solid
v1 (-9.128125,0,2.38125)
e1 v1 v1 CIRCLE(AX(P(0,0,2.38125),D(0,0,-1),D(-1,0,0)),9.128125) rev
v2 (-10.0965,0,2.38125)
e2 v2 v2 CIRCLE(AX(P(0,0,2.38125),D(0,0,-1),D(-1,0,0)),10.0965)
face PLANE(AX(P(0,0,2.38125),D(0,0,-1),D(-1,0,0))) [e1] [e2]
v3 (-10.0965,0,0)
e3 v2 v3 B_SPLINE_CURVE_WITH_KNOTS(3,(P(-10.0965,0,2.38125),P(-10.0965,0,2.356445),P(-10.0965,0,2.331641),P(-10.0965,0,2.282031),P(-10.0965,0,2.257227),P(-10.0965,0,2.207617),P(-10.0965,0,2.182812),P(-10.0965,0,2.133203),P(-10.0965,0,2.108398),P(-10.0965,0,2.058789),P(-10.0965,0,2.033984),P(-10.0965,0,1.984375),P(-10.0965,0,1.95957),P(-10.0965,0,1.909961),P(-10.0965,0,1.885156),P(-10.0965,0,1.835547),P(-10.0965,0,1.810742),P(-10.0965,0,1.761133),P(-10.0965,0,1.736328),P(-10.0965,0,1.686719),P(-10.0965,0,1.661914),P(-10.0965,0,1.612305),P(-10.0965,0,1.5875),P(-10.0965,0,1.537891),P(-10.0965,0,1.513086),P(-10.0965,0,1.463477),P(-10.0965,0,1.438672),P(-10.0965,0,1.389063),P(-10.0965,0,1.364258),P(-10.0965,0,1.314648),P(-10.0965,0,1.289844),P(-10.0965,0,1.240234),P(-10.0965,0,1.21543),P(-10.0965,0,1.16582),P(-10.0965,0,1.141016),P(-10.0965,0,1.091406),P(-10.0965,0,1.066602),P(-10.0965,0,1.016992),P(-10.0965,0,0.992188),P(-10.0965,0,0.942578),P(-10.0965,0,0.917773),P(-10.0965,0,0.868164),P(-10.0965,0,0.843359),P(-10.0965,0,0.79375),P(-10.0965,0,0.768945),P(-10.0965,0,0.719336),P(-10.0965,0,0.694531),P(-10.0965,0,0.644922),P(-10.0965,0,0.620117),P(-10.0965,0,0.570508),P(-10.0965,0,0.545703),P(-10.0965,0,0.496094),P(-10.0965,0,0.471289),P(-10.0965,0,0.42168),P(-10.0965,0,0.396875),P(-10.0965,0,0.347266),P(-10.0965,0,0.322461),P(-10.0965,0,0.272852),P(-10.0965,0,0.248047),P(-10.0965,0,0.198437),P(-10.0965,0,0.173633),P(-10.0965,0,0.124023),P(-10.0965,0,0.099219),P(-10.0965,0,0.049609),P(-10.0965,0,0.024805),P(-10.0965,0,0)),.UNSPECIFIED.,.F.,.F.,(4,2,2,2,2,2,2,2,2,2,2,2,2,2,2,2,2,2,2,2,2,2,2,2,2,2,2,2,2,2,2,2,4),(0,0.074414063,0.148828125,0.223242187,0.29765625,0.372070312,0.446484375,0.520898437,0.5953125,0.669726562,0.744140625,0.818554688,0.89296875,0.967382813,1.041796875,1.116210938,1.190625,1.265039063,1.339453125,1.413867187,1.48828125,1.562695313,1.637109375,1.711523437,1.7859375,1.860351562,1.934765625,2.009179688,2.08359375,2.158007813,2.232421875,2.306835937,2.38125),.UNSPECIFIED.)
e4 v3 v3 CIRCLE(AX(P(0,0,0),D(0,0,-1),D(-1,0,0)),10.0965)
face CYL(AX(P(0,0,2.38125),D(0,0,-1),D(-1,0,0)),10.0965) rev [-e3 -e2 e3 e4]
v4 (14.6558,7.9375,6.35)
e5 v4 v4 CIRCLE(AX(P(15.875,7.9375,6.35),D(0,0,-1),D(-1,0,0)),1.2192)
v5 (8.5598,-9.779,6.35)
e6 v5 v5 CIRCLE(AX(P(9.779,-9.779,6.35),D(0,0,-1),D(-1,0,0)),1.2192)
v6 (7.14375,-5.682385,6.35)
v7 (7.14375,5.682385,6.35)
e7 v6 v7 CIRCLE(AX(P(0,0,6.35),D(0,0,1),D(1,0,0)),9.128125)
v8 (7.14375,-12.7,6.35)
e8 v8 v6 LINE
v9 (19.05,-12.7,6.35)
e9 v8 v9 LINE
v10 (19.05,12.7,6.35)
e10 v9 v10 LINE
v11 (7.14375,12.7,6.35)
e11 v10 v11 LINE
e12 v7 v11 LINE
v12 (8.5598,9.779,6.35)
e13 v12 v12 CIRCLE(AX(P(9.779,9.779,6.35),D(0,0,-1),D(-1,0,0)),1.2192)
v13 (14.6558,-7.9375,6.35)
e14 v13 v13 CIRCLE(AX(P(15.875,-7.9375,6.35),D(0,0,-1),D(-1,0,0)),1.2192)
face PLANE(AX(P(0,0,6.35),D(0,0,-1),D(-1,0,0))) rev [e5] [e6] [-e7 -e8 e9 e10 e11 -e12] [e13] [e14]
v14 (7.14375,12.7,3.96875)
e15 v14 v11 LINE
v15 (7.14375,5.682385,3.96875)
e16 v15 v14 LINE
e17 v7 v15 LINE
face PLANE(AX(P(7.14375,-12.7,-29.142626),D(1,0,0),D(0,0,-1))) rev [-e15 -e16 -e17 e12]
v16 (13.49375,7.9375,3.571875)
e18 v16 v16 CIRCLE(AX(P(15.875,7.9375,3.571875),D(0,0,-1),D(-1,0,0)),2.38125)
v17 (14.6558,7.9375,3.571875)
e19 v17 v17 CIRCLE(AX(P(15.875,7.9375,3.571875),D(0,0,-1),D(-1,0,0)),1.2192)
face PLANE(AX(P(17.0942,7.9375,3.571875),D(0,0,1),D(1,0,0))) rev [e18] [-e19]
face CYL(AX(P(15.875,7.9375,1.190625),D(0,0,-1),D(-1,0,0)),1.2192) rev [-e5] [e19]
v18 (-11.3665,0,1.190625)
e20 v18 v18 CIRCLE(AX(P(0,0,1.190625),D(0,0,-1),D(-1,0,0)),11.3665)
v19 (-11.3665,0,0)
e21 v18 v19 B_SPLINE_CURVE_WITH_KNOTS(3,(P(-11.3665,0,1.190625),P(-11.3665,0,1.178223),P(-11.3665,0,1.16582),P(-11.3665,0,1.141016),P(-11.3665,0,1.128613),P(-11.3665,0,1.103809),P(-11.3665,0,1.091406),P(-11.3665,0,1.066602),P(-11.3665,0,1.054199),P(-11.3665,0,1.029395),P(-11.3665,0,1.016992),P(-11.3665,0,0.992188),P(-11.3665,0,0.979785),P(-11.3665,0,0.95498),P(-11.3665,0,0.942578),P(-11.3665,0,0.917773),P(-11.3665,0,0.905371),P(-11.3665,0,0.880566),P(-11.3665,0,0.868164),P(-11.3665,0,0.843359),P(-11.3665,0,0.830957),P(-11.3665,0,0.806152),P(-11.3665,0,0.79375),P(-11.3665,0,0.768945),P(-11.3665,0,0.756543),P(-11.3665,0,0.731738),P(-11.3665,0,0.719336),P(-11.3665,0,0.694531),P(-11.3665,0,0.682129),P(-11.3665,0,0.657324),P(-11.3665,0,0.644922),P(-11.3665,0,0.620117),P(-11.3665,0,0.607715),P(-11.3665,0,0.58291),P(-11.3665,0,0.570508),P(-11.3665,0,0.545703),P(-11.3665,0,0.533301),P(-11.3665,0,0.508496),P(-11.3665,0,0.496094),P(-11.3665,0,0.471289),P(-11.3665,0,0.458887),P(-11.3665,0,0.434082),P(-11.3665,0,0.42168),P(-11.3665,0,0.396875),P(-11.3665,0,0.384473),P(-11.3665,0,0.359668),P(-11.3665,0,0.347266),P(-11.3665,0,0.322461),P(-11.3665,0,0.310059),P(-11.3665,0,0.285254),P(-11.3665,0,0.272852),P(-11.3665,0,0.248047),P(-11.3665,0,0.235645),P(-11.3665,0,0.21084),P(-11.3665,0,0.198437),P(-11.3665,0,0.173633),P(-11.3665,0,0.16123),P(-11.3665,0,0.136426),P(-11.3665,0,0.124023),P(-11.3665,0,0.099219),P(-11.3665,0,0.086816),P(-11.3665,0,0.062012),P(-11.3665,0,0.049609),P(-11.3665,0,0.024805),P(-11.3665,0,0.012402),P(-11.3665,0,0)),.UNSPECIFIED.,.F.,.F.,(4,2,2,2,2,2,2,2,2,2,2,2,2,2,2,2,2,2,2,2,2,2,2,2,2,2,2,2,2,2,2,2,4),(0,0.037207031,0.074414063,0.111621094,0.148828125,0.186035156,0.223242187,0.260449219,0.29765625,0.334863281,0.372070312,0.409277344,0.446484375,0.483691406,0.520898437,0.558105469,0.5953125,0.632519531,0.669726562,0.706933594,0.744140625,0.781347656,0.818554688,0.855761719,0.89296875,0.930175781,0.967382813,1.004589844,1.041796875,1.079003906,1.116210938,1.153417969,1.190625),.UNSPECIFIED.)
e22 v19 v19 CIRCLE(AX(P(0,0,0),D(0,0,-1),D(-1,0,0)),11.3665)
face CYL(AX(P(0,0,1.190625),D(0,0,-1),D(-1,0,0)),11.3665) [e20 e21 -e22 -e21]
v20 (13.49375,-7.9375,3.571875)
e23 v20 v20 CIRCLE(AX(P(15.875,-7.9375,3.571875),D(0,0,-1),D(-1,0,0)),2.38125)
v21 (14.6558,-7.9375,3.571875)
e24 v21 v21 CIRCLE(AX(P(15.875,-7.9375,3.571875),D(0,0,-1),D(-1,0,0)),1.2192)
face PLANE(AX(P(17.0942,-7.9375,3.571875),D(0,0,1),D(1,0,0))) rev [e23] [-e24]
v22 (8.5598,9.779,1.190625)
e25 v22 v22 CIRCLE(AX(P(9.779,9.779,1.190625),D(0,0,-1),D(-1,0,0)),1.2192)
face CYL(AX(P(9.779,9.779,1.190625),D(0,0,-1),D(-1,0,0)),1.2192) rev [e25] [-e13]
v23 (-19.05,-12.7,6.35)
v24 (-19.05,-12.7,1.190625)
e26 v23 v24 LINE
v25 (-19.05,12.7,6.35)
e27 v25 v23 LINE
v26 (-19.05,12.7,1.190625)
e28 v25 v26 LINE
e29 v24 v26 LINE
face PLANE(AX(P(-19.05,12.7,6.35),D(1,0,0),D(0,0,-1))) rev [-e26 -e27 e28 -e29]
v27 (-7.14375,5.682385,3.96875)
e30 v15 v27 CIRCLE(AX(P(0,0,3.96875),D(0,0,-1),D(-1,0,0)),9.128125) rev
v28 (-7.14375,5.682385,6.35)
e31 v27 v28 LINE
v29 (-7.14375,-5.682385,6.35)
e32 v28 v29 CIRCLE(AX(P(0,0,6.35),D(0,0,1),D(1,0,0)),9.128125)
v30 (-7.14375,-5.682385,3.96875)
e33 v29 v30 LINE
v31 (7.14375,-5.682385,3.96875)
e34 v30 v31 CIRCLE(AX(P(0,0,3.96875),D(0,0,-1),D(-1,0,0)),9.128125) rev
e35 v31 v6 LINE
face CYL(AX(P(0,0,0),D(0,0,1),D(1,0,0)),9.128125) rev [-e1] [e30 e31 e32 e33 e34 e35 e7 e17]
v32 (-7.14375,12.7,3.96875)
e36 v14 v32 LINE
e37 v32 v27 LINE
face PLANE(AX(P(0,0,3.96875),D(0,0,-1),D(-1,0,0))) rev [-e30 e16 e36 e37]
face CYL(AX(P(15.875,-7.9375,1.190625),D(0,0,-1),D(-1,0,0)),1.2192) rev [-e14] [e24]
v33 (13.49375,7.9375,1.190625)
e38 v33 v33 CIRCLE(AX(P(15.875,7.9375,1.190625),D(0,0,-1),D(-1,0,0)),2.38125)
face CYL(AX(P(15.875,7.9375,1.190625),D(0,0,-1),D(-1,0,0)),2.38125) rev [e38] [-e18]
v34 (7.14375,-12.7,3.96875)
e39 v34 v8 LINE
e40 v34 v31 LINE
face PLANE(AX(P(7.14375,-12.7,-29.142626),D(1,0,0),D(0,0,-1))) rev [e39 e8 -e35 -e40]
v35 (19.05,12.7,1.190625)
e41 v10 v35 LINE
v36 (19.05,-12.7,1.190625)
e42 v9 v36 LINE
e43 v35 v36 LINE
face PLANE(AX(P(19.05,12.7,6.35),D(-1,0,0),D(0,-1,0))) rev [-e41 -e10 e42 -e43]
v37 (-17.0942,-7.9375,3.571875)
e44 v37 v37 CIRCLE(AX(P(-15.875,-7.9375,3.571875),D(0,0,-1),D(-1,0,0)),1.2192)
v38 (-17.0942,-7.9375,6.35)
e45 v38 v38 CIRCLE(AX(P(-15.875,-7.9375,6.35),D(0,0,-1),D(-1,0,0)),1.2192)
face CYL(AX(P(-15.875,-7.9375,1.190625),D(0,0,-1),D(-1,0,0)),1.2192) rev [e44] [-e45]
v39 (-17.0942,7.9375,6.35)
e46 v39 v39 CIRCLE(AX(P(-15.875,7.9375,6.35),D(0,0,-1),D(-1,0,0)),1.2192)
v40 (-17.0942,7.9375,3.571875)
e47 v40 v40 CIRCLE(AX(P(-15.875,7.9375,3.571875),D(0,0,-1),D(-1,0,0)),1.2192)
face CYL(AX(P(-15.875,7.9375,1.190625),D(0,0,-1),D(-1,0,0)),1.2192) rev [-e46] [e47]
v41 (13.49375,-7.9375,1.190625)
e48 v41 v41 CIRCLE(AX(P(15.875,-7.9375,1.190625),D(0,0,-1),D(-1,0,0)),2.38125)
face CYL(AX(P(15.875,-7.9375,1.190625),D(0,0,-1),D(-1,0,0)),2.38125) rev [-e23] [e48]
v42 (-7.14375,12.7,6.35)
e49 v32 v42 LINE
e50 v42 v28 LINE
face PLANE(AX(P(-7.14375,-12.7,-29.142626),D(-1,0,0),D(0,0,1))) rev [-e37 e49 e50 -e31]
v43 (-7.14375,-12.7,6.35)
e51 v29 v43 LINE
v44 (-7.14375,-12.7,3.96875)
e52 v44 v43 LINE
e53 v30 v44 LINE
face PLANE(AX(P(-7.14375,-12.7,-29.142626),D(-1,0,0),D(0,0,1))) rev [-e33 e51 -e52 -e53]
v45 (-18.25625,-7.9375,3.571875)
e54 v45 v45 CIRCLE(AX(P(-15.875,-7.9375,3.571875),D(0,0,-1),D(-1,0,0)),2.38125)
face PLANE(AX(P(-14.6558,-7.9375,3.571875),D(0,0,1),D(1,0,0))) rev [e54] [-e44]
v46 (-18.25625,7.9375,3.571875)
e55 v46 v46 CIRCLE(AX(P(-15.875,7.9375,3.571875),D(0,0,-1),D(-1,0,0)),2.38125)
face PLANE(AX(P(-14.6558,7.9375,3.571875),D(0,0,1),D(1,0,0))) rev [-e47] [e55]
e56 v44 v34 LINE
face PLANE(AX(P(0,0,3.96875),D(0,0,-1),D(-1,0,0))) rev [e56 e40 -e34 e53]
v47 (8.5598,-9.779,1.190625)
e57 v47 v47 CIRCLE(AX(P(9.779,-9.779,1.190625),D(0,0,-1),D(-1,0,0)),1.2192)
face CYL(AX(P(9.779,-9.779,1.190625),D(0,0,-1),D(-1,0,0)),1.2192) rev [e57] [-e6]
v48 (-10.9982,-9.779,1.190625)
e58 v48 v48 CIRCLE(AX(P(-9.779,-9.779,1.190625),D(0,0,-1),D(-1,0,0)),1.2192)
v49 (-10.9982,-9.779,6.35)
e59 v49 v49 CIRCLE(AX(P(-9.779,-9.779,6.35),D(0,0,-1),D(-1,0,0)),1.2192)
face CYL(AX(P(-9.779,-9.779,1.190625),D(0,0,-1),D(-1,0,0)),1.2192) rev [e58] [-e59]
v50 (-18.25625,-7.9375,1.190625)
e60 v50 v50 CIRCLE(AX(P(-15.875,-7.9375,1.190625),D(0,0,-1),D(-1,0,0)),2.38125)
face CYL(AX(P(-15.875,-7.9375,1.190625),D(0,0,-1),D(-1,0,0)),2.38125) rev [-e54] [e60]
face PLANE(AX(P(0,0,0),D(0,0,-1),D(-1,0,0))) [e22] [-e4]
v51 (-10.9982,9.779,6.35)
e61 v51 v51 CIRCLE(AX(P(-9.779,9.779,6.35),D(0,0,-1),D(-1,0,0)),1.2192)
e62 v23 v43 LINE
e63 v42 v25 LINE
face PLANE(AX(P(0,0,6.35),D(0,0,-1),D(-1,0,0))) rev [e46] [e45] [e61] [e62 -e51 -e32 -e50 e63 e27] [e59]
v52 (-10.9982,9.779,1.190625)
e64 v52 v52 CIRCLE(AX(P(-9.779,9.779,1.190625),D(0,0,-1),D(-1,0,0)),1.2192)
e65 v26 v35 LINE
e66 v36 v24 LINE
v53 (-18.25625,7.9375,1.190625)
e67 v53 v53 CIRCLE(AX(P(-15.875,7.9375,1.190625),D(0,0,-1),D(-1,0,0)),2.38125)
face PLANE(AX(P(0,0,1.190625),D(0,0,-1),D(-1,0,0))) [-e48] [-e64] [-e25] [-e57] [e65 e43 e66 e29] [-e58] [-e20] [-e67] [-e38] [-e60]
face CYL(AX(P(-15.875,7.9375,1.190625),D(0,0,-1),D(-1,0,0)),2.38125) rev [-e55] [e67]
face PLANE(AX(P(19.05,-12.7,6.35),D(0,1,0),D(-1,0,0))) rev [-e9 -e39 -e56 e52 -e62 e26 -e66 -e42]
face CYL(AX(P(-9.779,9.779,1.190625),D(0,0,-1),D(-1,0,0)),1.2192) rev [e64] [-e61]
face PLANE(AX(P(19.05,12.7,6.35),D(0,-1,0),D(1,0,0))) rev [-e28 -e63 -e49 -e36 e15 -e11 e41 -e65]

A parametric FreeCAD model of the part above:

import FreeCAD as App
import Part
import Sketcher
from FreeCAD import Vector
Q = App.Units.Quantity

doc = App.newDocument("Part")
body = doc.addObject("PartDesign::Body", "Body")

# Sketch on XY plane
sketch1 = body.newObject("Sketcher::SketchObject", "Sketch")
sketch1.AttachmentSupport = (doc.getObject("XY_Plane"), [""])
sketch1.MapMode = "FlatFace"
sketch1.addGeometry(Part.LineSegment(Vector(-19, 13, 0), Vector(-19, -13, 0)), False)
sketch1.addGeometry(Part.LineSegment(Vector(-19, -13, 0), Vector(19, -13, 0)), False)
sketch1.addGeometry(Part.LineSegment(Vector(19, -13, 0), Vector(19, 13, 0)), False)
sketch1.addGeometry(Part.LineSegment(Vector(19, 13, 0), Vector(-19, 13, 0)), False)
sketch1.addConstraint(Sketcher.Constraint("Coincident", 0, 2, 1, 1))
sketch1.addConstraint(Sketcher.Constraint("Coincident", 1, 2, 2, 1))
sketch1.addConstraint(Sketcher.Constraint("Coincident", 2, 2, 3, 1))
sketch1.addConstraint(Sketcher.Constraint("Coincident", 3, 2, 0, 1))
sketch1.addConstraint(Sketcher.Constraint("Vertical", 0))
sketch1.addConstraint(Sketcher.Constraint("Horizontal", 1))
sketch1.addConstraint(Sketcher.Constraint("Vertical", 2))
sketch1.addConstraint(Sketcher.Constraint("Horizontal", 3))
sketch1.addConstraint(Sketcher.Constraint("Symmetric", 0, 2, 2, 2, -1, 1))
sketch1.addConstraint(Sketcher.Constraint("DistanceY", 0, 2, 0, 1, Q("1 in")))
sketch1.addConstraint(Sketcher.Constraint("DistanceX", 1, 1, 1, 2, Q("1.5 in")))
pad1 = body.newObject("PartDesign::Pad", "Pad")
pad1.Profile = sketch1
pad1.Length = Q("0.25 in")

# Sketch on XY plane
sketch2 = body.newObject("Sketcher::SketchObject", "Sketch001")
sketch2.AttachmentSupport = (doc.getObject("XY_Plane"), [""])
sketch2.MapMode = "FlatFace"
sketch2.AttachmentOffset = App.Placement(Vector(0, 0, 0.25 * 25.4), App.Rotation())
sketch2.addGeometry(Part.Circle(Vector(0, 0, 0), Vector(0, 0, 1), 9), False)
sketch2.addConstraint(Sketcher.Constraint("Coincident", 0, 3, -1, 1))
sketch2.addConstraint(Sketcher.Constraint("Diameter", 0, Q("0.71875 in")))
pocket1 = body.newObject("PartDesign::Pocket", "Pocket")
pocket1.Profile = sketch2
pocket1.Type = "ThroughAll"

# Sketch on XY plane
sketch3 = body.newObject("Sketcher::SketchObject", "Sketch002")
sketch3.AttachmentSupport = (doc.getObject("XY_Plane"), [""])
sketch3.MapMode = "FlatFace"
sketch3.AttachmentOffset = App.Placement(Vector(0, 0, 0.25 * 25.4), App.Rotation())
sketch3.addGeometry(Part.LineSegment(Vector(-7, 13, 0), Vector(-7, -13, 0)), False)
sketch3.addGeometry(Part.LineSegment(Vector(-7, -13, 0), Vector(7, -13, 0)), False)
sketch3.addGeometry(Part.LineSegment(Vector(7, -13, 0), Vector(7, 13, 0)), False)
sketch3.addGeometry(Part.LineSegment(Vector(7, 13, 0), Vector(-7, 13, 0)), False)
sketch3.addConstraint(Sketcher.Constraint("Coincident", 0, 2, 1, 1))
sketch3.addConstraint(Sketcher.Constraint("Coincident", 1, 2, 2, 1))
sketch3.addConstraint(Sketcher.Constraint("Coincident", 2, 2, 3, 1))
sketch3.addConstraint(Sketcher.Constraint("Coincident", 3, 2, 0, 1))
sketch3.addConstraint(Sketcher.Constraint("Vertical", 0))
sketch3.addConstraint(Sketcher.Constraint("Horizontal", 1))
sketch3.addConstraint(Sketcher.Constraint("Vertical", 2))
sketch3.addConstraint(Sketcher.Constraint("Horizontal", 3))
sketch3.addConstraint(Sketcher.Constraint("Symmetric", 0, 2, 2, 2, -1, 1))
sketch3.addConstraint(Sketcher.Constraint("DistanceY", 0, 2, 0, 1, Q("1 in")))
sketch3.addConstraint(Sketcher.Constraint("DistanceX", 1, 1, 1, 2, Q("0.5625 in")))
pocket2 = body.newObject("PartDesign::Pocket", "Pocket001")
pocket2.Profile = sketch3
pocket2.Length = Q("0.09375 in")

# Sketch on XY plane
sketch4 = body.newObject("Sketcher::SketchObject", "Sketch003")
sketch4.AttachmentSupport = (doc.getObject("XY_Plane"), [""])
sketch4.MapMode = "FlatFace"
sketch4.addGeometry(Part.LineSegment(Vector(19, 13, 0), Vector(19, -13, 0)), False)
sketch4.addGeometry(Part.LineSegment(Vector(19, -13, 0), Vector(-19, -13, 0)), False)
sketch4.addGeometry(Part.LineSegment(Vector(-19, -13, 0), Vector(-19, 13, 0)), False)
sketch4.addGeometry(Part.LineSegment(Vector(-19, 13, 0), Vector(19, 13, 0)), False)
sketch4.addGeometry(Part.Circle(Vector(0, 0, 0), Vector(0, 0, 1), 11), False)
sketch4.addConstraint(Sketcher.Constraint("Coincident", 0, 2, 1, 1))
sketch4.addConstraint(Sketcher.Constraint("Coincident", 1, 2, 2, 1))
sketch4.addConstraint(Sketcher.Constraint("Coincident", 2, 2, 3, 1))
sketch4.addConstraint(Sketcher.Constraint("Coincident", 3, 2, 0, 1))
sketch4.addConstraint(Sketcher.Constraint("Vertical", 0))
sketch4.addConstraint(Sketcher.Constraint("Horizontal", 1))
sketch4.addConstraint(Sketcher.Constraint("Vertical", 2))
sketch4.addConstraint(Sketcher.Constraint("Horizontal", 3))
sketch4.addConstraint(Sketcher.Constraint("Coincident", 4, 3, -1, 1))
sketch4.addConstraint(Sketcher.Constraint("Symmetric", 0, 2, 2, 2, -1, 1))
sketch4.addConstraint(Sketcher.Constraint("DistanceY", 0, 2, 0, 1, Q("1 in")))
sketch4.addConstraint(Sketcher.Constraint("Diameter", 4, Q("0.895 in")))
sketch4.addConstraint(Sketcher.Constraint("DistanceX", 1, 2, 1, 1, Q("1.5 in")))
pocket3 = body.newObject("PartDesign::Pocket", "Pocket002")
pocket3.Profile = sketch4
pocket3.Length = Q("0.046875 in")
pocket3.Reversed = True

# Sketch on XY plane
sketch5 = body.newObject("Sketcher::SketchObject", "Sketch004")
sketch5.AttachmentSupport = (doc.getObject("XY_Plane"), [""])
sketch5.MapMode = "FlatFace"
sketch5.addGeometry(Part.Circle(Vector(0, 0, 0), Vector(0, 0, 1), 10), False)
sketch5.addConstraint(Sketcher.Constraint("Coincident", 0, 3, -1, 1))
sketch5.addConstraint(Sketcher.Constraint("Diameter", 0, Q("0.795 in")))
pocket4 = body.newObject("PartDesign::Pocket", "Pocket003")
pocket4.Profile = sketch5
pocket4.Length = Q("0.09375 in")
pocket4.Reversed = True

# Sketch on XY plane
sketch6 = body.newObject("Sketcher::SketchObject", "Sketch005")
sketch6.AttachmentSupport = (doc.getObject("XY_Plane"), [""])
sketch6.MapMode = "FlatFace"
sketch6.AttachmentOffset = App.Placement(Vector(0, 0, 0.046875 * 25.4), App.Rotation())
sketch6.addGeometry(Part.Circle(Vector(9.8, 9.8, 0), Vector(0, 0, 1), 1.2), False)
sketch6.addGeometry(Part.Circle(Vector(-9.8, 9.8, 0), Vector(0, 0, 1), 1.2), False)
sketch6.addGeometry(Part.Circle(Vector(-9.8, -9.8, 0), Vector(0, 0, 1), 1.2), False)
sketch6.addGeometry(Part.Circle(Vector(9.8, -9.8, 0), Vector(0, 0, 1), 1.2), False)
sketch6.addConstraint(Sketcher.Constraint("Equal", 0, 1))
sketch6.addConstraint(Sketcher.Constraint("Equal", 1, 2))
sketch6.addConstraint(Sketcher.Constraint("Equal", 2, 3))
sketch6.addConstraint(Sketcher.Constraint("Symmetric", 0, 3, 2, 3, -1, 1))
sketch6.addConstraint(Sketcher.Constraint("Symmetric", 1, 3, 3, 3, -1, 1))
sketch6.addConstraint(Sketcher.Constraint("Symmetric", 0, 3, 1, 3, -2))
sketch6.addConstraint(Sketcher.Constraint("Diameter", 0, Q("0.096 in")))
sketch6.addConstraint(Sketcher.Constraint("DistanceX", 1, 3, 0, 3, Q("0.77 in")))
sketch6.addConstraint(Sketcher.Constraint("DistanceY", 2, 3, 1, 3, Q("0.77 in")))
doc.recompute()
hole = body.newObject("PartDesign::Hole", "Hole")
hole.Profile = sketch6
hole.ThreadType = "None"
hole.Diameter = Q("0.096 in")
hole.DepthType = "ThroughAll"
hole.Reversed = True

# Sketch on XY plane
sketch7 = body.newObject("Sketcher::SketchObject", "Sketch006")
sketch7.AttachmentSupport = (doc.getObject("XY_Plane"), [""])
sketch7.MapMode = "FlatFace"
sketch7.AttachmentOffset = App.Placement(Vector(0, 0, 0.046875 * 25.4), App.Rotation())
sketch7.addGeometry(Part.Circle(Vector(15.9, 7.9, 0), Vector(0, 0, 1), 1.2), False)
sketch7.addGeometry(Part.Circle(Vector(15.9, -7.9, 0), Vector(0, 0, 1), 1.2), False)
sketch7.addGeometry(Part.Circle(Vector(-15.9, -7.9, 0), Vector(0, 0, 1), 1.2), False)
sketch7.addGeometry(Part.Circle(Vector(-15.9, 7.9, 0), Vector(0, 0, 1), 1.2), False)
sketch7.addConstraint(Sketcher.Constraint("Equal", 0, 1))
sketch7.addConstraint(Sketcher.Constraint("Equal", 1, 2))
sketch7.addConstraint(Sketcher.Constraint("Equal", 2, 3))
sketch7.addConstraint(Sketcher.Constraint("Symmetric", 0, 3, 2, 3, -1, 1))
sketch7.addConstraint(Sketcher.Constraint("Symmetric", 1, 3, 3, 3, -1, 1))
sketch7.addConstraint(Sketcher.Constraint("Symmetric", 1, 3, 2, 3, -2))
sketch7.addConstraint(Sketcher.Constraint("Diameter", 0, Q("0.096 in")))
sketch7.addConstraint(Sketcher.Constraint("DistanceX", 2, 3, 1, 3, Q("1.25 in")))
sketch7.addConstraint(Sketcher.Constraint("DistanceY", -1, 1, 0, 3, Q("0.3125 in")))
doc.recompute()
hole2 = body.newObject("PartDesign::Hole", "Hole001")
hole2.Profile = sketch7
hole2.ThreadType = "None"
hole2.Diameter = Q("0.096 in")
hole2.DepthType = "ThroughAll"
hole2.HoleCutType = "Counterbore"
hole2.HoleCutDiameter = Q("0.1875 in")
hole2.HoleCutDepth = Q("0.09375 in")
hole2.Reversed = True

doc.recompute()
